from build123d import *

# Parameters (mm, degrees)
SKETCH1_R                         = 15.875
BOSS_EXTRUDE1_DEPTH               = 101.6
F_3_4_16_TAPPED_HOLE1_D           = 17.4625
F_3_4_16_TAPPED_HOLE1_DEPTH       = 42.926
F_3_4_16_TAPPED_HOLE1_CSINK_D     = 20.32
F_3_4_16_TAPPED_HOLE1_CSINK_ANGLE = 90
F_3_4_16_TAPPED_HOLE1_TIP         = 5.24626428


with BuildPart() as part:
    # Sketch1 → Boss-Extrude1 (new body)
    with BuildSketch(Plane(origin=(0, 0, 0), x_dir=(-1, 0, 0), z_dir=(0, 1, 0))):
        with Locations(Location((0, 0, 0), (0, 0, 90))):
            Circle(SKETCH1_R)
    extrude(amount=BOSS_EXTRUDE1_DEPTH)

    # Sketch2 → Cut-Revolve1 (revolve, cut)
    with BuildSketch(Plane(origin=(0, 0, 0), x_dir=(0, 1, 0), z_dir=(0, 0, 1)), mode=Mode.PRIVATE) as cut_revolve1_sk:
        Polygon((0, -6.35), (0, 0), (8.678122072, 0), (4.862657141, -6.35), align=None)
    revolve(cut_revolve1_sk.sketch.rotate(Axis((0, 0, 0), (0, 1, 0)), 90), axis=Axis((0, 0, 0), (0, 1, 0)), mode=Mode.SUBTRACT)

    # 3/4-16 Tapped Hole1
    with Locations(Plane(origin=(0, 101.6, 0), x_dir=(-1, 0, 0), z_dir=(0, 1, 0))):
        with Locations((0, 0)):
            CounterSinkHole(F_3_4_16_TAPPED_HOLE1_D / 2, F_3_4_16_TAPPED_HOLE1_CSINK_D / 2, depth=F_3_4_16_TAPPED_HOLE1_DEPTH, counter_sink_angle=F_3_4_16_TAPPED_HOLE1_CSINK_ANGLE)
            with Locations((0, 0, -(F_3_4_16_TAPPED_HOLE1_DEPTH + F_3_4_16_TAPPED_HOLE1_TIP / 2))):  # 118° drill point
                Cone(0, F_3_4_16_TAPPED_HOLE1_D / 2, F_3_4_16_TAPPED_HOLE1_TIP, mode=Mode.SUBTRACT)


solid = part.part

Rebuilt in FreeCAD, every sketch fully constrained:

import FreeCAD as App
import Part
import Sketcher
from FreeCAD import Vector
Q = App.Units.Quantity


def add_polygon(sketch, points):
    """Adds a closed chain of lines whose ends are joined by coincident constraints."""
    first, n = sketch.GeometryCount, len(points)
    for a, b in zip(points, points[1:] + points[:1]):
        sketch.addGeometry(Part.LineSegment(App.Vector(*a, 0), App.Vector(*b, 0)), False)
    for i in range(n):
        sketch.addConstraint(Sketcher.Constraint("Coincident", first + i, 2, first + (i + 1) % n, 1))

doc = App.newDocument("Part")
body = doc.addObject("PartDesign::Body", "Body")

# Sketch on XZ plane
sketch1 = body.newObject("Sketcher::SketchObject", "Sketch")
sketch1.AttachmentSupport = (doc.getObject("XZ_Plane"), [""])
sketch1.MapMode = "FlatFace"
sketch1.addGeometry(Part.Circle(Vector(0, 0, 0), Vector(0, 0, 1), 15.875), False)
sketch1.addConstraint([
    Sketcher.Constraint("Coincident", 0, 3, -1, 1),
    Sketcher.Constraint("Diameter", 0, Q("1.25 in")),
])
pad1 = body.newObject("PartDesign::Pad", "Pad")
pad1.Profile = sketch1
pad1.Length = Q("4 in")
pad1.Reversed = True

# Sketch on XY plane
sketch2 = body.newObject("Sketcher::SketchObject", "Sketch001")
sketch2.AttachmentSupport = (doc.getObject("XY_Plane"), [""])
sketch2.MapMode = "FlatFace"
add_polygon(sketch2, [(0, 0), (6.35, 0), (6.35, 4.862657), (0, 8.678122)])  # lines 0-3
sketch2.addConstraint([
    Sketcher.Constraint("Horizontal", 0),
    Sketcher.Constraint("Vertical", 1),
    Sketcher.Constraint("Vertical", 3),
    Sketcher.Constraint("Coincident", 3, 2, -1, 1),
    Sketcher.Constraint("Angle", 2, Q("149 deg")),
    Sketcher.Constraint("DistanceX", 0, 1, 0, 2, Q("0.25 in")),
    Sketcher.Constraint("DistanceY", 1, 1, 1, 2, Q("4.862657 mm")),
])
groove = body.newObject("PartDesign::Groove", "Groove")
groove.Profile = sketch2
groove.ReferenceAxis = (sketch2, ["V_Axis"])
groove.Angle = 360

# Sketch on XZ plane
sketch3 = body.newObject("Sketcher::SketchObject", "Sketch002")
sketch3.AttachmentSupport = (doc.getObject("XZ_Plane"), [""])
sketch3.MapMode = "FlatFace"
sketch3.AttachmentOffset = App.Placement(Vector(0, 0, -4 * 25.4), App.Rotation())
sketch3.addGeometry(Part.Circle(Vector(0, 0, 0), Vector(0, 0, 1), 8.73125), False)
sketch3.addConstraint([
    Sketcher.Constraint("Coincident", 0, 3, -1, 1),
    Sketcher.Constraint("Diameter", 0, Q("0.6875 in")),
])
doc.recompute()
hole = body.newObject("PartDesign::Hole", "Hole")
hole.Profile = sketch3
hole.ThreadType = "None"
hole.Diameter = Q("0.6875 in")
hole.DepthType = "Dimension"
hole.Depth = Q("1.69 in")
hole.DrillPoint = "Angled"
hole.DrillPointAngle = 118
hole.HoleCutType = "Countersink"
hole.HoleCutDiameter = Q("0.8 in")
hole.HoleCutCountersinkAngle = 90
hole.Reversed = True

doc.recompute()
